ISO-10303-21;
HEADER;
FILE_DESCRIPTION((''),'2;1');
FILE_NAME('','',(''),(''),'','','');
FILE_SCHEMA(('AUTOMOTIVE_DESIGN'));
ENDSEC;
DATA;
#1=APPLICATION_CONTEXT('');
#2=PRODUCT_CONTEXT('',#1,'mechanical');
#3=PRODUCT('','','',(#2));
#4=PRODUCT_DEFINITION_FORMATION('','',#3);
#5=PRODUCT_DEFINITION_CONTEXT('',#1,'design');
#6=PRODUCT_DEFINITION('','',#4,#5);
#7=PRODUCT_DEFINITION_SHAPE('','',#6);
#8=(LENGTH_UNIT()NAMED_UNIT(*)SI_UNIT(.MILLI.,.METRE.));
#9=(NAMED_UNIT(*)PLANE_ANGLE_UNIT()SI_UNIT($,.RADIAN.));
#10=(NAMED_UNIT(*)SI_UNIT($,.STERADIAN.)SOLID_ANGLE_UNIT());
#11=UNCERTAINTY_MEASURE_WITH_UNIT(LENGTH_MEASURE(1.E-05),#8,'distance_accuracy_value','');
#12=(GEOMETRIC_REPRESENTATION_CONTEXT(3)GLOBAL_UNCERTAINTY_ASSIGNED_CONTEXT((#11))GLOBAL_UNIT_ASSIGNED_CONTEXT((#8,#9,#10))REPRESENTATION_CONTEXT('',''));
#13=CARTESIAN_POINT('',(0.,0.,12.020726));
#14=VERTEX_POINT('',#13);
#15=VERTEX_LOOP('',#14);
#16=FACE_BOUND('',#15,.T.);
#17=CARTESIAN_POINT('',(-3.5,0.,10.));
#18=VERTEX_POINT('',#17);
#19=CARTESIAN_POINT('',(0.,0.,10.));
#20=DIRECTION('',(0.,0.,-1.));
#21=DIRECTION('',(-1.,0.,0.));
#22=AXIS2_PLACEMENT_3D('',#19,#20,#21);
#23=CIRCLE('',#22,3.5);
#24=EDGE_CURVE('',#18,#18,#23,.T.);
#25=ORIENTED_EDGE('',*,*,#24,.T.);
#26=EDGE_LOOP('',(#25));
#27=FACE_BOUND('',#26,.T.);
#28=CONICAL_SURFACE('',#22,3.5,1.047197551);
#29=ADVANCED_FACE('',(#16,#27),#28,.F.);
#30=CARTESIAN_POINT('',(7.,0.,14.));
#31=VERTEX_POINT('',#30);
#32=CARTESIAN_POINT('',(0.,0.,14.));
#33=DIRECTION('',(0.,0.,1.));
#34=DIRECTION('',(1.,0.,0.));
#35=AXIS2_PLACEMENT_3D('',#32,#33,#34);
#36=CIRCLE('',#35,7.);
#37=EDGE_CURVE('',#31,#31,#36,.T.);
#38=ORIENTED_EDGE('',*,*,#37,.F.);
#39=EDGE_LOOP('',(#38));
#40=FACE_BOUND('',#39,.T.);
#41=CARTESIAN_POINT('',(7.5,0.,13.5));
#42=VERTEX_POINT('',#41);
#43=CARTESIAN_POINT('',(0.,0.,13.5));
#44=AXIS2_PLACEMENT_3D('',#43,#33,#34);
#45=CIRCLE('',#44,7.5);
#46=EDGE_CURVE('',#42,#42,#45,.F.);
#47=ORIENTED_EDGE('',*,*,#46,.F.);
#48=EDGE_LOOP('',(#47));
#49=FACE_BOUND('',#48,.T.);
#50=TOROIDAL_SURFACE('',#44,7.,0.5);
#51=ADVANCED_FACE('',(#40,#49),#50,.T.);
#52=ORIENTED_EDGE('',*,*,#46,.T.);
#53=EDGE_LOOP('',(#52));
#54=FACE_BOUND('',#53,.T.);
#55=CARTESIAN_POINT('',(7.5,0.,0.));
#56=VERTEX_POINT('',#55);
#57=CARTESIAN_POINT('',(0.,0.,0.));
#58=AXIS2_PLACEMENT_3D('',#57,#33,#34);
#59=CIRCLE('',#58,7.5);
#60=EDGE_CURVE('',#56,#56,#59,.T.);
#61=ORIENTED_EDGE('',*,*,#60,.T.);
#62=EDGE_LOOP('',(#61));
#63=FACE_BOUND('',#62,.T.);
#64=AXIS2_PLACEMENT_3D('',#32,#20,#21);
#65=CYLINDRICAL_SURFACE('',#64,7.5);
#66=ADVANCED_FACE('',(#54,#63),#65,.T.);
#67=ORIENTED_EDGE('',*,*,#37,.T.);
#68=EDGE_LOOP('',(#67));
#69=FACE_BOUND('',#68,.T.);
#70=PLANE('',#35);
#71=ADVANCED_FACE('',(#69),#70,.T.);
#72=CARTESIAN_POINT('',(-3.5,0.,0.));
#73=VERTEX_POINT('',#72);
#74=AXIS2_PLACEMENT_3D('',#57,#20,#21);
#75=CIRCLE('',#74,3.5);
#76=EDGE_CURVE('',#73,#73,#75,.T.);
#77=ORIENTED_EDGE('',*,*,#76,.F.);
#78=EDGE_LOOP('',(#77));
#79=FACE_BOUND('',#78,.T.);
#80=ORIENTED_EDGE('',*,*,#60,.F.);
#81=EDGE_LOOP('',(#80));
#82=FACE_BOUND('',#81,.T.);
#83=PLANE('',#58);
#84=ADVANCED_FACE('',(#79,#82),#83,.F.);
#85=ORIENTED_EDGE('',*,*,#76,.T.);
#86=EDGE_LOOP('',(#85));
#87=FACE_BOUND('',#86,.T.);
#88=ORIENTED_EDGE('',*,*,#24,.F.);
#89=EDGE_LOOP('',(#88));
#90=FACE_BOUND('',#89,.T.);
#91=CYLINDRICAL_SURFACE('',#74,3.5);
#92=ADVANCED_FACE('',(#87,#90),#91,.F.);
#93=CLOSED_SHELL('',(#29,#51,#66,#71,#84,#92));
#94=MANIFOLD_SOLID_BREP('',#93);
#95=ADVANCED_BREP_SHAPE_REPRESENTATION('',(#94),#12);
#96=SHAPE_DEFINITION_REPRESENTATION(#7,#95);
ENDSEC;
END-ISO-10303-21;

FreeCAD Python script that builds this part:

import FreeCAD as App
import Part
import Sketcher
from FreeCAD import Vector
Q = App.Units.Quantity


def edges_at(feature, points):
    """Names of the edges that pass closest to the given points."""
    edges = feature.Shape.Edges
    near = lambda p: min(range(len(edges)), key=lambda i: edges[i].distToShape(Part.Vertex(*p))[0])
    return sorted({f"Edge{near(p) + 1}" for p in points})

doc = App.newDocument("Part")
body = doc.addObject("PartDesign::Body", "Body")

sketch1 = doc.addObject("Sketcher::SketchObject", "Sketch")
body.addObject(sketch1)
sketch1.AttachmentSupport = (doc.XY_Plane, [""])
sketch1.MapMode = "FlatFace"
sketch1.addGeometry(Part.Circle(Vector(0, 0, 0), Vector(0, 0, 1), 8), False)
sketch1.addConstraint(Sketcher.Constraint("Coincident", 0, 3, -1, 1))
sketch1.addConstraint(Sketcher.Constraint("Diameter", 0, Q("15 mm")))
pad1 = doc.addObject("PartDesign::Pad", "Pad")
body.addObject(pad1)
pad1.Profile = sketch1
pad1.Length = 14

sketch2 = doc.addObject("Sketcher::SketchObject", "Sketch001")
body.addObject(sketch2)
sketch2.AttachmentSupport = (doc.XY_Plane, [""])
sketch2.MapMode = "FlatFace"
sketch2.addGeometry(Part.Circle(Vector(0, 0, 0), Vector(0, 0, 1), 3.5), False)
sketch2.addConstraint(Sketcher.Constraint("Coincident", 0, 3, -1, 1))
sketch2.addConstraint(Sketcher.Constraint("Diameter", 0, Q("7 mm")))
doc.recompute()
hole = doc.addObject("PartDesign::Hole", "Hole")
body.addObject(hole)
hole.Profile = sketch2
hole.ThreadType = "None"
hole.Diameter = 7
hole.DepthType = "Dimension"
hole.Depth = 10
hole.DrillPoint = "Angled"
hole.DrillPointAngle = 120
hole.Reversed = True
doc.recompute()

fillet = doc.addObject("PartDesign::Fillet", "Fillet")
body.addObject(fillet)
fillet.Base = (hole, edges_at(hole, [(-7.5, 0, 14)]))
fillet.Radius = 0.5

doc.recompute()
